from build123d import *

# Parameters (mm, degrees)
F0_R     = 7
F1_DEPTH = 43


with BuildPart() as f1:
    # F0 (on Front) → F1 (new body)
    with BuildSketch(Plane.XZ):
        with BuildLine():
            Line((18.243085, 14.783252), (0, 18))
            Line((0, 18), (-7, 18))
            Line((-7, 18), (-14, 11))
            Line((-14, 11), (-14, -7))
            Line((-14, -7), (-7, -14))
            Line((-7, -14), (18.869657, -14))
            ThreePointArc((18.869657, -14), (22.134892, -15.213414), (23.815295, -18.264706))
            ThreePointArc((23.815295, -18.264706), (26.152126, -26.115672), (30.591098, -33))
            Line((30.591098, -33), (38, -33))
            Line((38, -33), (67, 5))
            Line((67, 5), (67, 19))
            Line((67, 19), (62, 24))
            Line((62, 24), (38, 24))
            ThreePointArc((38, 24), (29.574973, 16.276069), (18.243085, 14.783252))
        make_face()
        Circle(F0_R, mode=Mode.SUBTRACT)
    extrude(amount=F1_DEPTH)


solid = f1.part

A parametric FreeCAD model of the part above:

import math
import FreeCAD as App
import Part
import Sketcher
from FreeCAD import Vector
Q = App.Units.Quantity

doc = App.newDocument("Part")
body = doc.addObject("PartDesign::Body", "Body")

# Sketch on XZ plane
sketch1 = body.newObject("Sketcher::SketchObject", "Sketch")
sketch1.AttachmentSupport = (doc.getObject("XZ_Plane"), [""])
sketch1.MapMode = "FlatFace"
sketch1.addGeometry(Part.LineSegment(Vector(18.243085, 14.783252, 0), Vector(0, 18, 0)), False)
sketch1.addGeometry(Part.LineSegment(Vector(0, 18, 0), Vector(-7, 18, 0)), False)
sketch1.addGeometry(Part.LineSegment(Vector(-7, 18, 0), Vector(-14, 11, 0)), False)
sketch1.addGeometry(Part.LineSegment(Vector(-14, 11, 0), Vector(-14, -7, 0)), False)
sketch1.addGeometry(Part.LineSegment(Vector(-14, -7, 0), Vector(-7, -14, 0)), False)
sketch1.addGeometry(Part.LineSegment(Vector(-7, -14, 0), Vector(18.869657, -14, 0)), False)
sketch1.addGeometry(Part.ArcOfCircle(Part.Circle(Vector(18.869656, -19.000001, 0), Vector(0, 0, 1), 5.000001), math.radians(8.456524), math.radians(89.999985)), False)
sketch1.addGeometry(Part.ArcOfCircle(Part.Circle(Vector(52.500011, -13.999994, 0), Vector(0, 0, 1), 29.000013), math.radians(-171.543471), math.radians(-139.06728)), False)
sketch1.addGeometry(Part.LineSegment(Vector(30.591098, -33, 0), Vector(38, -33, 0)), False)
sketch1.addGeometry(Part.LineSegment(Vector(38, -33, 0), Vector(67, 5, 0)), False)
sketch1.addGeometry(Part.LineSegment(Vector(67, 5, 0), Vector(67, 19, 0)), False)
sketch1.addGeometry(Part.LineSegment(Vector(67, 19, 0), Vector(62, 24, 0)), False)
sketch1.addGeometry(Part.LineSegment(Vector(62, 24, 0), Vector(38, 24, 0)), False)
sketch1.addGeometry(Part.ArcOfCircle(Part.Circle(Vector(21.542401, 33.494598, 0), Vector(0, 0, 1), 18.999999), math.radians(-100.000002), math.radians(-29.981194)), False)
sketch1.addGeometry(Part.Circle(Vector(0, 0, 0), Vector(0, 0, 1), 7), False)
sketch1.addConstraint(Sketcher.Constraint("Coincident", 0, 2, 1, 1))
sketch1.addConstraint(Sketcher.Constraint("Coincident", 1, 2, 2, 1))
sketch1.addConstraint(Sketcher.Constraint("Coincident", 2, 2, 3, 1))
sketch1.addConstraint(Sketcher.Constraint("Coincident", 3, 2, 4, 1))
sketch1.addConstraint(Sketcher.Constraint("Coincident", 4, 2, 5, 1))
sketch1.addConstraint(Sketcher.Constraint("Tangent", 5, 2, 6, 2))
sketch1.addConstraint(Sketcher.Constraint("Tangent", 6, 1, 7, 1))
sketch1.addConstraint(Sketcher.Constraint("Coincident", 7, 2, 8, 1))
sketch1.addConstraint(Sketcher.Constraint("Coincident", 8, 2, 9, 1))
sketch1.addConstraint(Sketcher.Constraint("Coincident", 9, 2, 10, 1))
sketch1.addConstraint(Sketcher.Constraint("Coincident", 10, 2, 11, 1))
sketch1.addConstraint(Sketcher.Constraint("Coincident", 11, 2, 12, 1))
sketch1.addConstraint(Sketcher.Constraint("Coincident", 12, 2, 13, 2))
sketch1.addConstraint(Sketcher.Constraint("Tangent", 13, 1, 0, 1))
sketch1.addConstraint(Sketcher.Constraint("Horizontal", 1))
sketch1.addConstraint(Sketcher.Constraint("Vertical", 3))
sketch1.addConstraint(Sketcher.Constraint("Horizontal", 5))
sketch1.addConstraint(Sketcher.Constraint("Horizontal", 8))
sketch1.addConstraint(Sketcher.Constraint("Vertical", 10))
sketch1.addConstraint(Sketcher.Constraint("Horizontal", 12))
sketch1.addConstraint(Sketcher.Constraint("Coincident", 14, 3, -1, 1))
sketch1.addConstraint(Sketcher.Constraint("PointOnObject", 0, 2, -2))
sketch1.addConstraint(Sketcher.Constraint("Perpendicular", 2, 4))
sketch1.addConstraint(Sketcher.Constraint("Parallel", 4, 11))
sketch1.addConstraint(Sketcher.Constraint("Vertical", 1, 2, 4, 2))
sketch1.addConstraint(Sketcher.Constraint("Vertical", 8, 2, 12, 2))
sketch1.addConstraint(Sketcher.Constraint("Equal", 2, 4))
sketch1.addConstraint(Sketcher.Constraint("Diameter", 14, 14.0))
sketch1.addConstraint(Sketcher.Constraint("Radius", 6, 5.000001))
sketch1.addConstraint(Sketcher.Constraint("Radius", 13, 18.999999))
sketch1.addConstraint(Sketcher.Constraint("DistanceX", 1, 2, 1, 1, 7.0))
sketch1.addConstraint(Sketcher.Constraint("DistanceX", 12, 2, 12, 1, 24.0))
sketch1.addConstraint(Sketcher.Constraint("DistanceY", 3, 2, 3, 1, 18.0))
sketch1.addConstraint(Sketcher.Constraint("DistanceY", 10, 1, 10, 2, 14.0))
sketch1.addConstraint(Sketcher.Constraint("Angle", 0, Q("170 deg")))
sketch1.addConstraint(Sketcher.Constraint("DistanceY", 6, 3, -1, 1, 19.000001))
sketch1.addConstraint(Sketcher.Constraint("DistanceY", -1, 1, 0, 2, 18.0))
sketch1.addConstraint(Sketcher.Constraint("DistanceY", 7, 2, -1, 1, 33.0))
sketch1.addConstraint(Sketcher.Constraint("DistanceX", -1, 1, 8, 2, 38.0))
sketch1.addConstraint(Sketcher.Constraint("DistanceX", -1, 1, 9, 2, 67.0))
sketch1.addConstraint(Sketcher.Constraint("DistanceY", -1, 1, 9, 2, 5.0))
sketch1.addConstraint(Sketcher.Constraint("Radius", 7, 29.000013))
sketch1.addConstraint(Sketcher.Constraint("DistanceX", -1, 1, 7, 2, 30.591098))
sketch1.addConstraint(Sketcher.Constraint("DistanceX", 5, 1, 5, 2, 25.869657))
pad1 = body.newObject("PartDesign::Pad", "Pad")
pad1.Profile = sketch1
pad1.Length = 43

doc.recompute()
